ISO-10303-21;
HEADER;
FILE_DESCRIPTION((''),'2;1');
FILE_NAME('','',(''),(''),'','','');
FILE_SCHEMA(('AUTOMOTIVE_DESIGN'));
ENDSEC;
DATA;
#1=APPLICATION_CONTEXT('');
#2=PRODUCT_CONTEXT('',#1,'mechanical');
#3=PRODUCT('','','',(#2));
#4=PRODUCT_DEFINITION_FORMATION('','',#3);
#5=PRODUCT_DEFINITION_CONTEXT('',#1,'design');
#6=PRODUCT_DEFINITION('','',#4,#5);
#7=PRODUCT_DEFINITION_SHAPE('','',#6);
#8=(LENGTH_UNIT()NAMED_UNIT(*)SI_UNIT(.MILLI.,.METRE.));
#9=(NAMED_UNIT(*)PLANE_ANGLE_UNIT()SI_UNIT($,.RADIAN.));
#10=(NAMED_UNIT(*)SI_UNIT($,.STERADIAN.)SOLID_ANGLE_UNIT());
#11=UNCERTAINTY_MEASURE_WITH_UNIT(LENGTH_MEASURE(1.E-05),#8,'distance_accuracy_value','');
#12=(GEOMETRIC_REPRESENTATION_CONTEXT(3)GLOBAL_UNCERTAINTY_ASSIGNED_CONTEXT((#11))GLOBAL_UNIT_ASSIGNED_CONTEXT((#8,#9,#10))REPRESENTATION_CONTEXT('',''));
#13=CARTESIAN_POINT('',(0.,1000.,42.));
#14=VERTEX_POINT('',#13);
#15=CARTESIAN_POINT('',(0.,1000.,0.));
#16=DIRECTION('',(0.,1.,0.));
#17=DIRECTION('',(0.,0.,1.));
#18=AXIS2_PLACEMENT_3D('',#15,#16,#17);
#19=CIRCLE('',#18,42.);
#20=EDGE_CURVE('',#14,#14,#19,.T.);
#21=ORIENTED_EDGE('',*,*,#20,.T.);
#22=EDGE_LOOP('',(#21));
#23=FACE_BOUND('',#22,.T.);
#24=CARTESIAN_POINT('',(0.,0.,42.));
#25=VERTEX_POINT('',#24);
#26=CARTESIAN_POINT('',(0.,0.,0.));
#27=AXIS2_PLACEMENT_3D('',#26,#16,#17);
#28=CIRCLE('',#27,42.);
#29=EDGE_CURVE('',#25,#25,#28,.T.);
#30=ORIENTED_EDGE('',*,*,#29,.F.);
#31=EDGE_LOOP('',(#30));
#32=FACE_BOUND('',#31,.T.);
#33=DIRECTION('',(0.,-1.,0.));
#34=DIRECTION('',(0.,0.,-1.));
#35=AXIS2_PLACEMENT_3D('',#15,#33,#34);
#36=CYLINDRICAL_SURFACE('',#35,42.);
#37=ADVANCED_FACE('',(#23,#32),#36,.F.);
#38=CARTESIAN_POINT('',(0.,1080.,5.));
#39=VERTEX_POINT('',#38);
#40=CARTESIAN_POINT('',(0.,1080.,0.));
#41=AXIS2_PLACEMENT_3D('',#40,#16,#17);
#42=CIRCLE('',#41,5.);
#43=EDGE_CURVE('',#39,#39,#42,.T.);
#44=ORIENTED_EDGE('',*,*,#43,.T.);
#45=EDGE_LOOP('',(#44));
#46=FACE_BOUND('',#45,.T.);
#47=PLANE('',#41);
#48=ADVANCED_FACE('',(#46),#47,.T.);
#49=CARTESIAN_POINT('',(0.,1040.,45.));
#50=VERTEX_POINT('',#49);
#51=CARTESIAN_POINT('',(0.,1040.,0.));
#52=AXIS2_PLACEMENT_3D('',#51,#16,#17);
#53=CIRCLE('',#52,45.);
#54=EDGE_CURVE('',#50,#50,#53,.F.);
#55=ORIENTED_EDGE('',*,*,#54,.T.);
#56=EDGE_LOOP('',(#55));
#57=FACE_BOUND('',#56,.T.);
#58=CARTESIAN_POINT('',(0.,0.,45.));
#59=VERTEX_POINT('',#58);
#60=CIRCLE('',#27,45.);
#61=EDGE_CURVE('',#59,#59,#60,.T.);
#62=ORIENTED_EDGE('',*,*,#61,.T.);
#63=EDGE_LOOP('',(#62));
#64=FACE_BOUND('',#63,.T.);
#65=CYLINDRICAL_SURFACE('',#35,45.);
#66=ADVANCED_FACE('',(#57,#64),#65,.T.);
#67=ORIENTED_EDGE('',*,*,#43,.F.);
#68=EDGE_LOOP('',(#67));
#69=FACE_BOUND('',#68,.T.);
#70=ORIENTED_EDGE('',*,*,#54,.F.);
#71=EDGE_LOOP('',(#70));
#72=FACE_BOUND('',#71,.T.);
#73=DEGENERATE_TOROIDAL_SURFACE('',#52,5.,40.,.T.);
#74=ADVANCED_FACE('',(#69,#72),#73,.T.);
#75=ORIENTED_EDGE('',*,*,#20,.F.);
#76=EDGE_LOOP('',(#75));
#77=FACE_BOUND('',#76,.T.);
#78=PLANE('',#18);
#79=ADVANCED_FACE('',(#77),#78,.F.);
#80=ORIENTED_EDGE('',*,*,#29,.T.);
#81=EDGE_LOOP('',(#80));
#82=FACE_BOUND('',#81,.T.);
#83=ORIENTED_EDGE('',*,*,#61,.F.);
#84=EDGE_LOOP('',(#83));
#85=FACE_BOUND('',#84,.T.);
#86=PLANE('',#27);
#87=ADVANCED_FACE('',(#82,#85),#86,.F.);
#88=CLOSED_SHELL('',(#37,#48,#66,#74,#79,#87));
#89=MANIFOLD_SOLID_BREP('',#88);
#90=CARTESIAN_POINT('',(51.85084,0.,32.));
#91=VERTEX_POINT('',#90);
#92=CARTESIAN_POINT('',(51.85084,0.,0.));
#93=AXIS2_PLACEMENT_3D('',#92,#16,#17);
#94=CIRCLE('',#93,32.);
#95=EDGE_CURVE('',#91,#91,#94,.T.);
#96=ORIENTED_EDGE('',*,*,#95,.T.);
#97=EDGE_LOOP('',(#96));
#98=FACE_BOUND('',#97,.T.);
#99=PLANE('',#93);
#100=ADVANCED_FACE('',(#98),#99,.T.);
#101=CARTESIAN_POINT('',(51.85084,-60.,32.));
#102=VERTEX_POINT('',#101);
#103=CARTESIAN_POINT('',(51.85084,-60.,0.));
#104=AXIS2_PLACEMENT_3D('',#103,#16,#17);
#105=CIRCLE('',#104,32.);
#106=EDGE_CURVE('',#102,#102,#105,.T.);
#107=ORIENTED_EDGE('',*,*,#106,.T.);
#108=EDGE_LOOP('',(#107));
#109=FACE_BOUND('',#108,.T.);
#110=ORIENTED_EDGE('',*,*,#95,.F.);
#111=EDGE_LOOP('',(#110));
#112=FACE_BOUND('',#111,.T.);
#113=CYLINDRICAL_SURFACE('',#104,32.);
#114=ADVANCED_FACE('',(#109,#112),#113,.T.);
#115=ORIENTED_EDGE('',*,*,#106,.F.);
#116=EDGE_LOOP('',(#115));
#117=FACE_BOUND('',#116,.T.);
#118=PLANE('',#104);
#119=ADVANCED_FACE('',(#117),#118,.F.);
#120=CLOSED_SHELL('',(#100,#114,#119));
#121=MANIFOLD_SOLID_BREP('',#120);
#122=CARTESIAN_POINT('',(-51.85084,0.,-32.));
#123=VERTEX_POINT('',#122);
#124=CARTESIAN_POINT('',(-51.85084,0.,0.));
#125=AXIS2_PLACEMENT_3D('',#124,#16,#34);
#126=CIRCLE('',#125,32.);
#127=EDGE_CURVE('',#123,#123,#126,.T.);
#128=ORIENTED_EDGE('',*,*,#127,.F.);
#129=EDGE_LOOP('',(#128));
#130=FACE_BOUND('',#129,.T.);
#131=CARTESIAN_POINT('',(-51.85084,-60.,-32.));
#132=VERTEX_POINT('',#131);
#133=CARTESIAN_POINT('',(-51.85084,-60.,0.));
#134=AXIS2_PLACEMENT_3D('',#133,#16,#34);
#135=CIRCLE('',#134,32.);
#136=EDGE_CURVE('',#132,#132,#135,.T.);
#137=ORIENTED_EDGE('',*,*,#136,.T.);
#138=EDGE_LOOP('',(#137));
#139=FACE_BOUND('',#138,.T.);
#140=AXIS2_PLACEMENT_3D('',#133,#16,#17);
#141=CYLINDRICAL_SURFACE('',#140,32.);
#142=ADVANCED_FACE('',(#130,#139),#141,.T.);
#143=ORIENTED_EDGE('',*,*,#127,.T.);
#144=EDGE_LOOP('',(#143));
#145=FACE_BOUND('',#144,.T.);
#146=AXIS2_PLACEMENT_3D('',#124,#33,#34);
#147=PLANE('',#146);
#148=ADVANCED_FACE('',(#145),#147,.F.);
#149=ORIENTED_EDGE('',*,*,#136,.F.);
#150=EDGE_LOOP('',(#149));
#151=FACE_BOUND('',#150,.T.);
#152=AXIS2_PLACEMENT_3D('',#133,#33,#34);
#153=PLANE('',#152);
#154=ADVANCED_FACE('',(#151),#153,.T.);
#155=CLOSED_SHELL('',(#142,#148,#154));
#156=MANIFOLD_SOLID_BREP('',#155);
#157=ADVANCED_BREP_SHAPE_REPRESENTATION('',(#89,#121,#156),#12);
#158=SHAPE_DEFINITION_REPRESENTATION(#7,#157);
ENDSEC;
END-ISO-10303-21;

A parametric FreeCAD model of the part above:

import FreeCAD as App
import Part
import Sketcher
Q = App.Units.Quantity


def edges_at(feature, points):
    """Names of the edges that pass closest to the given points."""
    edges = feature.Shape.Edges
    near = lambda p: min(range(len(edges)), key=lambda i: edges[i].distToShape(Part.Vertex(*p))[0])
    return sorted({f"Edge{near(p) + 1}" for p in points})

doc = App.newDocument("Part")
body = doc.addObject("PartDesign::Body", "Body")

# Sketch on XZ plane
sketch1 = body.newObject("Sketcher::SketchObject", "Sketch")
sketch1.AttachmentSupport = (doc.getObject("XZ_Plane"), [""])
sketch1.MapMode = "FlatFace"
sketch1.addGeometry([
    Part.Circle(App.Vector(0, 0, 0), App.Vector(0, 0, 1), 45),
    Part.Circle(App.Vector(0, 0, 0), App.Vector(0, 0, 1), 42),
], False)
sketch1.addConstraint([
    Sketcher.Constraint("Coincident", 0, 3, -1, 1),
    Sketcher.Constraint("Coincident", 1, 3, -1, 1),
    Sketcher.Constraint("Diameter", 0, Q("90 mm")),
    Sketcher.Constraint("Diameter", 1, Q("84 mm")),
])
pad1 = body.newObject("PartDesign::Pad", "Pad")
pad1.Profile = sketch1
pad1.Length = 1000
pad1.Reversed = True

# Sketch on XZ plane
sketch2 = body.newObject("Sketcher::SketchObject", "Sketch001")
sketch2.AttachmentSupport = (doc.getObject("XZ_Plane"), [""])
sketch2.MapMode = "FlatFace"
sketch2.AttachmentOffset = App.Placement(App.Vector(0, 0, -1000), App.Rotation())
sketch2.addGeometry(Part.Circle(App.Vector(0, 0, 0), App.Vector(0, 0, 1), 45), False)
sketch2.addConstraint([
    Sketcher.Constraint("Coincident", 0, 3, -1, 1),
    Sketcher.Constraint("Diameter", 0, Q("90 mm")),
])
pad2 = body.newObject("PartDesign::Pad", "Pad001")
pad2.Profile = sketch2
pad2.Length = 80
pad2.Reversed = True
doc.recompute()

fillet = body.newObject("PartDesign::Fillet", "Fillet")
fillet.Base = (pad2, edges_at(pad2, [(-45, 1080, 0)]))
fillet.Radius = 40
body2 = doc.addObject("PartDesign::Body", "Body001")

# Sketch on XZ plane
sketch3 = body2.newObject("Sketcher::SketchObject", "Sketch002")
sketch3.AttachmentSupport = (doc.getObject("XZ_Plane001"), [""])
sketch3.MapMode = "FlatFace"
sketch3.addGeometry(Part.Circle(App.Vector(52, 0, 0), App.Vector(0, 0, 1), 32), False)
sketch3.addConstraint([
    Sketcher.Constraint("PointOnObject", 0, 3, -1),
    Sketcher.Constraint("Diameter", 0, Q("64 mm")),
    Sketcher.Constraint("DistanceX", -1, 1, 0, 3, Q("51.85084 mm")),
])
pad3 = body2.newObject("PartDesign::Pad", "Pad002")
pad3.Profile = sketch3
pad3.Length = 60
body3 = doc.addObject("PartDesign::Body", "Body002")

# Sketch on XZ plane
sketch4 = body3.newObject("Sketcher::SketchObject", "Sketch003")
sketch4.AttachmentSupport = (doc.getObject("XZ_Plane002"), [""])
sketch4.MapMode = "FlatFace"
sketch4.addGeometry(Part.Circle(App.Vector(-52, 0, 0), App.Vector(0, 0, 1), 32), False)
sketch4.addConstraint([
    Sketcher.Constraint("PointOnObject", 0, 3, -1),
    Sketcher.Constraint("Diameter", 0, Q("64 mm")),
    Sketcher.Constraint("DistanceX", 0, 3, -1, 1, Q("51.85084 mm")),
])
pad4 = body3.newObject("PartDesign::Pad", "Pad003")
pad4.Profile = sketch4
pad4.Length = 60

doc.recompute()
